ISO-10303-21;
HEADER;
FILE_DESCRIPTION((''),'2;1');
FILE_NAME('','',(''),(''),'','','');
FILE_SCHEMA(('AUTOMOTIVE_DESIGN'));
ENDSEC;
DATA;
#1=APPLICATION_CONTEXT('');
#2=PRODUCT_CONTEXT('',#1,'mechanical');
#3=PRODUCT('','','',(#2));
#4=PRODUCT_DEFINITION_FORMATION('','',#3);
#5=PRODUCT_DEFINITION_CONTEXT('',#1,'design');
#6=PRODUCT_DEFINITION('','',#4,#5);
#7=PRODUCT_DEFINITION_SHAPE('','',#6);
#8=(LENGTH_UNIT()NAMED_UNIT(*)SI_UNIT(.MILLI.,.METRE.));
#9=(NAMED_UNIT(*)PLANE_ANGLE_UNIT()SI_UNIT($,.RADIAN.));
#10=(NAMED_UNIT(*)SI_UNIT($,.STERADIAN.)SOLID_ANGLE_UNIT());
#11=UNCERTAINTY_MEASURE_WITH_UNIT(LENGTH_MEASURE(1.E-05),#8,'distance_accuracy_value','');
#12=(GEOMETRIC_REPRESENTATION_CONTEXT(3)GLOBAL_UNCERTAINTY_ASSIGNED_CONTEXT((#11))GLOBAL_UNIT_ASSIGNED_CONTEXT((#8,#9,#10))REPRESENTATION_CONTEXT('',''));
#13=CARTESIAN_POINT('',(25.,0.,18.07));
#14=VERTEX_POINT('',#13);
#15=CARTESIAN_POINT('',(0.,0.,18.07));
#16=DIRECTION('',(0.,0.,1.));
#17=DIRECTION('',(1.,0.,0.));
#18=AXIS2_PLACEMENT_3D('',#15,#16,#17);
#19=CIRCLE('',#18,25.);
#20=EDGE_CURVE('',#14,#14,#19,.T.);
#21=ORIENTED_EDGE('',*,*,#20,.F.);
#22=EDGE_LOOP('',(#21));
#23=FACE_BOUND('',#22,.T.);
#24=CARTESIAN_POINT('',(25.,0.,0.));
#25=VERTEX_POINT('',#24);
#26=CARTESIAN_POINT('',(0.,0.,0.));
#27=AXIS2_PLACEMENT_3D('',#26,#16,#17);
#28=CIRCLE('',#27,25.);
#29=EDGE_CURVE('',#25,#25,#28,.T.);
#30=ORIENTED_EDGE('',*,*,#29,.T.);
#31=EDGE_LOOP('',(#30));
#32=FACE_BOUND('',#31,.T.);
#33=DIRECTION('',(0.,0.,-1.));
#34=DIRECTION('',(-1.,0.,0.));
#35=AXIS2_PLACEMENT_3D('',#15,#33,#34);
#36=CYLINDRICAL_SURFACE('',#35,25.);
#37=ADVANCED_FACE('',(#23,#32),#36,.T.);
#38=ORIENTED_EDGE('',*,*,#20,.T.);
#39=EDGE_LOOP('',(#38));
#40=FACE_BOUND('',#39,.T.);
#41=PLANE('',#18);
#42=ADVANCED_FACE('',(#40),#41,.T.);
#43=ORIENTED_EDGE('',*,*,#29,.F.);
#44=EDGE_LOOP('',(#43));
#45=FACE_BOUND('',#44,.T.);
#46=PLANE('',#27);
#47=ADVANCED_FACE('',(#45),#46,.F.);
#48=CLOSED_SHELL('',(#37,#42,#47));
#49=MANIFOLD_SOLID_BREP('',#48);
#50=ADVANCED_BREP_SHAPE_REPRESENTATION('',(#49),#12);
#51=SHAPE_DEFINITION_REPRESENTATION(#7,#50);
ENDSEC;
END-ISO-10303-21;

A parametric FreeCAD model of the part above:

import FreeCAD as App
import Part
import Sketcher
Q = App.Units.Quantity

doc = App.newDocument("Part")
body = doc.addObject("PartDesign::Body", "Body")

sketch1 = body.newObject("Sketcher::SketchObject", "Sketch")
sketch1.AttachmentSupport = (doc.getObject("XY_Plane"), [""])
sketch1.MapMode = "FlatFace"
sketch1.addGeometry(Part.Circle(App.Vector(0, 0, 0), App.Vector(0, 0, 1), 25), False)
sketch1.addConstraint([
    Sketcher.Constraint("Coincident", 0, 3, -1, 1),
    Sketcher.Constraint("Diameter", 0, Q("50 mm")),
])
pad1 = body.newObject("PartDesign::Pad", "Pad")
pad1.Profile = sketch1
pad1.Length = 18.07

doc.recompute()
